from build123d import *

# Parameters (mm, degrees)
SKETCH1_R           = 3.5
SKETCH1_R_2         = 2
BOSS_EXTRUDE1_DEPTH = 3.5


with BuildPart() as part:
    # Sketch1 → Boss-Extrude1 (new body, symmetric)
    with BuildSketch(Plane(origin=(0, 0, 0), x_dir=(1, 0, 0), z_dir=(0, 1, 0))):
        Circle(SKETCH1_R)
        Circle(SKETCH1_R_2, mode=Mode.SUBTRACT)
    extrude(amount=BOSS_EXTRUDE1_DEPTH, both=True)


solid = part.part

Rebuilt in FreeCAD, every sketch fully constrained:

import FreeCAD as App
import Part
import Sketcher
from FreeCAD import Vector

doc = App.newDocument("Part")
body = doc.addObject("PartDesign::Body", "Body")

sketch1 = body.newObject("Sketcher::SketchObject", "Sketch")
sketch1.AttachmentSupport = (doc.getObject("XZ_Plane"), [""])
sketch1.MapMode = "FlatFace"
sketch1.addGeometry([
    Part.Circle(Vector(0, 0, 0), Vector(0, 0, 1), 3.5),
    Part.Circle(Vector(0, 0, 0), Vector(0, 0, 1), 2),
], False)
sketch1.addConstraint([
    Sketcher.Constraint("Coincident", 0, 3, -1, 1),
    Sketcher.Constraint("Coincident", 1, 3, -1, 1),
    Sketcher.Constraint("Diameter", 0, 7.0),
    Sketcher.Constraint("Diameter", 1, 4.0),
])
pad1 = body.newObject("PartDesign::Pad", "Pad")
pad1.Profile = sketch1
pad1.Length = 7
pad1.Midplane = True

doc.recompute()
